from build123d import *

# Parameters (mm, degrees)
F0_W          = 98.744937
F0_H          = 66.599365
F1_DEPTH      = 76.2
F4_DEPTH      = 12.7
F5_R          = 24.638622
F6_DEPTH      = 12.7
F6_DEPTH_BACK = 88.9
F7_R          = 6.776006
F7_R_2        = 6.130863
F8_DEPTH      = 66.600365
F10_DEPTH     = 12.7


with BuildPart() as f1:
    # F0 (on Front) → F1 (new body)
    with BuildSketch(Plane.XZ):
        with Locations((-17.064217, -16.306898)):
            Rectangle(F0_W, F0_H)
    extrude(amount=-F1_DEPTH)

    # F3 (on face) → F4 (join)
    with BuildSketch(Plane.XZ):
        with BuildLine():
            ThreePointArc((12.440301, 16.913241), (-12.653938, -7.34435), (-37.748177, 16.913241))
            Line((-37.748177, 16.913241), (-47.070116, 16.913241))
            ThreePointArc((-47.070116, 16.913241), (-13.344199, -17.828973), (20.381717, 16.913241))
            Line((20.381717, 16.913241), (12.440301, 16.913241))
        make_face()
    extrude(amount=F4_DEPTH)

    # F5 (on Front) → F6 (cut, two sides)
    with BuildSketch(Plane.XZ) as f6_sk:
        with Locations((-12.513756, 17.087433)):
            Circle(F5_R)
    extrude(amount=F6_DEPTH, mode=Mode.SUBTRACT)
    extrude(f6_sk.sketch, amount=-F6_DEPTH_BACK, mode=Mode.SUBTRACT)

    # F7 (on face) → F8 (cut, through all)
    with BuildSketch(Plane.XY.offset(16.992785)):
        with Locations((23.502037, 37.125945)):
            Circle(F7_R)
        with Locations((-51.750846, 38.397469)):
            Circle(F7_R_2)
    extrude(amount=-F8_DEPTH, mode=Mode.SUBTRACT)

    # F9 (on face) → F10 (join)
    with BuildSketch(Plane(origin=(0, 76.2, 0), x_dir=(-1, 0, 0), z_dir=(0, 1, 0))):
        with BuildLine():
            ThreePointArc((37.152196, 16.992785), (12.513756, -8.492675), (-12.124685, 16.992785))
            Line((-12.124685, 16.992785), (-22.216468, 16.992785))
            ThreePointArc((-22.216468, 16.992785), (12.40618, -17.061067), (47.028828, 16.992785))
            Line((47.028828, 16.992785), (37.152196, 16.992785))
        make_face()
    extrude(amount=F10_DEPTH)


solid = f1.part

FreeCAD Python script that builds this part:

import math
import FreeCAD as App
import Part
import Sketcher
Q = App.Units.Quantity

doc = App.newDocument("Part")
body = doc.addObject("PartDesign::Body", "Body")

# Sketch on XZ plane
sketch1 = doc.addObject("Sketcher::SketchObject", "Sketch")
body.addObject(sketch1)
sketch1.AttachmentSupport = (doc.XZ_Plane, [""])
sketch1.MapMode = "FlatFace"
sketch1.addGeometry([
    Part.LineSegment(App.Vector(-66, 17, 0), App.Vector(-66, -50, 0)),
    Part.LineSegment(App.Vector(-66, -50, 0), App.Vector(32, -50, 0)),
    Part.LineSegment(App.Vector(32, -50, 0), App.Vector(32, 17, 0)),
    Part.LineSegment(App.Vector(32, 17, 0), App.Vector(-66, 17, 0)),
], False)
sketch1.addConstraint([
    Sketcher.Constraint("Coincident", 0, 2, 1, 1),
    Sketcher.Constraint("Coincident", 1, 2, 2, 1),
    Sketcher.Constraint("Coincident", 2, 2, 3, 1),
    Sketcher.Constraint("Coincident", 3, 2, 0, 1),
    Sketcher.Constraint("Vertical", 0),
    Sketcher.Constraint("Horizontal", 1),
    Sketcher.Constraint("Vertical", 2),
    Sketcher.Constraint("Horizontal", 3),
    Sketcher.Constraint("DistanceX", 1, 1, 1, 2, Q("98.744937 mm")),
    Sketcher.Constraint("DistanceY", 0, 2, 0, 1, Q("66.599365 mm")),
    Sketcher.Constraint("DistanceY", 0, 2, -1, 1, Q("49.60658 mm")),
    Sketcher.Constraint("DistanceX", -1, 1, 1, 2, Q("32.308251 mm")),
])
pad1 = doc.addObject("PartDesign::Pad", "Pad")
body.addObject(pad1)
pad1.Profile = sketch1
pad1.Length = Q("3 in")
pad1.Reversed = True

# Sketch on XZ plane
sketch2 = doc.addObject("Sketcher::SketchObject", "Sketch001")
body.addObject(sketch2)
sketch2.AttachmentSupport = (doc.XZ_Plane, [""])
sketch2.MapMode = "FlatFace"
sketch2.addGeometry([
    Part.ArcOfCircle(Part.Circle(App.Vector(-12.653938, 17.764317, 0), App.Vector(0, 0, 1), 25.108667), math.radians(-178.057547), math.radians(-1.942453)),
    Part.LineSegment(App.Vector(-37.748177, 16.913241, 0), App.Vector(-47.070116, 16.913241, 0)),
    Part.ArcOfCircle(Part.Circle(App.Vector(-13.3442, 15.911808, 0), App.Vector(0, 0, 1), 33.740781), math.radians(178.2992), math.radians(361.7008)),
    Part.LineSegment(App.Vector(20.381717, 16.913241, 0), App.Vector(12.440301, 16.913241, 0)),
], False)
sketch2.addConstraint([
    Sketcher.Constraint("Coincident", 0, 1, 1, 1),
    Sketcher.Constraint("Coincident", 1, 2, 2, 1),
    Sketcher.Constraint("Coincident", 2, 2, 3, 1),
    Sketcher.Constraint("Coincident", 3, 2, 0, 2),
    Sketcher.Constraint("Horizontal", 1),
    Sketcher.Constraint("Horizontal", 3),
    Sketcher.Constraint("Horizontal", 1, 2, 2, 2),
    Sketcher.Constraint("Radius", 2, Q("33.740781 mm")),
    Sketcher.Constraint("Radius", 0, Q("25.108667 mm")),
    Sketcher.Constraint("DistanceX", 1, 2, 1, 1, Q("9.321939 mm")),
    Sketcher.Constraint("DistanceX", 2, 3, -1, 1, Q("13.3442 mm")),
    Sketcher.Constraint("DistanceX", -1, 1, 3, 2, Q("12.440301 mm")),
    Sketcher.Constraint("DistanceX", 3, 2, 3, 1, Q("7.941416 mm")),
    Sketcher.Constraint("DistanceY", -1, 1, 2, 3, Q("15.911808 mm")),
])
pad2 = doc.addObject("PartDesign::Pad", "Pad001")
body.addObject(pad2)
pad2.Profile = sketch2
pad2.Length = Q("0.5 in")

# Sketch on XZ plane
sketch3 = doc.addObject("Sketcher::SketchObject", "Sketch002")
body.addObject(sketch3)
sketch3.AttachmentSupport = (doc.XZ_Plane, [""])
sketch3.MapMode = "FlatFace"
sketch3.addGeometry(Part.Circle(App.Vector(-13, 17, 0), App.Vector(0, 0, 1), 25), False)
sketch3.addConstraint([
    Sketcher.Constraint("Diameter", 0, Q("49.277244 mm")),
    Sketcher.Constraint("DistanceX", 0, 3, -1, 1, Q("12.513756 mm")),
    Sketcher.Constraint("DistanceY", -1, 1, 0, 3, Q("17.087433 mm")),
])
pocket1 = doc.addObject("PartDesign::Pocket", "Pocket")
body.addObject(pocket1)
pocket1.Profile = sketch3
pocket1.Type = "ThroughAll"
pocket1.Midplane = True

# Sketch on XY plane
sketch4 = doc.addObject("Sketcher::SketchObject", "Sketch003")
body.addObject(sketch4)
sketch4.AttachmentSupport = (doc.XY_Plane, [""])
sketch4.MapMode = "FlatFace"
sketch4.AttachmentOffset = App.Placement(App.Vector(0, 0, 16.992785), App.Rotation())
sketch4.addGeometry([
    Part.Circle(App.Vector(24, 37, 0), App.Vector(0, 0, 1), 7),
    Part.Circle(App.Vector(-52, 38, 0), App.Vector(0, 0, 1), 6),
], False)
sketch4.addConstraint([
    Sketcher.Constraint("Diameter", 0, Q("13.552012 mm")),
    Sketcher.Constraint("Diameter", 1, Q("12.261726 mm")),
    Sketcher.Constraint("DistanceY", -1, 1, 1, 3, Q("38.397469 mm")),
    Sketcher.Constraint("DistanceX", -1, 1, 0, 3, Q("23.502037 mm")),
    Sketcher.Constraint("DistanceY", -1, 1, 0, 3, Q("37.125945 mm")),
    Sketcher.Constraint("DistanceX", 1, 3, -1, 1, Q("51.750846 mm")),
])
pocket2 = doc.addObject("PartDesign::Pocket", "Pocket001")
body.addObject(pocket2)
pocket2.Profile = sketch4
pocket2.Type = "ThroughAll"

# Sketch on XZ plane
sketch5 = doc.addObject("Sketcher::SketchObject", "Sketch004")
body.addObject(sketch5)
sketch5.AttachmentSupport = (doc.XZ_Plane, [""])
sketch5.MapMode = "FlatFace"
sketch5.AttachmentOffset = App.Placement(App.Vector(0, 0, -3 * 25.4), App.Rotation())
sketch5.addGeometry([
    Part.ArcOfCircle(Part.Circle(App.Vector(-13, 16, 0), App.Vector(0, 0, 1), 25), math.radians(178), math.radians(362)),
    Part.LineSegment(App.Vector(12, 17, 0), App.Vector(22, 17, 0)),
    Part.ArcOfCircle(Part.Circle(App.Vector(-12, 18, 0), App.Vector(0, 0, 1), 35), math.radians(-179), math.radians(-1)),
    Part.LineSegment(App.Vector(-47, 17, 0), App.Vector(-37, 17, 0)),
], False)
sketch5.addConstraint([
    Sketcher.Constraint("Coincident", 0, 2, 1, 1),
    Sketcher.Constraint("Coincident", 1, 2, 2, 2),
    Sketcher.Constraint("Coincident", 2, 1, 3, 1),
    Sketcher.Constraint("Coincident", 3, 2, 0, 1),
    Sketcher.Constraint("Horizontal", 1),
    Sketcher.Constraint("Horizontal", 3),
    Sketcher.Constraint("Horizontal", 1, 2, 2, 1),
    Sketcher.Constraint("Radius", 2, Q("34.627398 mm")),
    Sketcher.Constraint("Radius", 0, Q("24.652516 mm")),
    Sketcher.Constraint("DistanceX", 3, 1, 3, 2, Q("9.876632 mm")),
    Sketcher.Constraint("DistanceX", 1, 1, 1, 2, Q("10.091783 mm")),
    Sketcher.Constraint("DistanceY", -1, 1, 0, 3, Q("16.159841 mm")),
    Sketcher.Constraint("DistanceX", 2, 3, -1, 1, Q("12.40618 mm")),
    Sketcher.Constraint("DistanceY", -1, 1, 2, 3, Q("17.566331 mm")),
])
pad3 = doc.addObject("PartDesign::Pad", "Pad002")
body.addObject(pad3)
pad3.Profile = sketch5
pad3.Length = Q("0.5 in")
pad3.Reversed = True

doc.recompute()
